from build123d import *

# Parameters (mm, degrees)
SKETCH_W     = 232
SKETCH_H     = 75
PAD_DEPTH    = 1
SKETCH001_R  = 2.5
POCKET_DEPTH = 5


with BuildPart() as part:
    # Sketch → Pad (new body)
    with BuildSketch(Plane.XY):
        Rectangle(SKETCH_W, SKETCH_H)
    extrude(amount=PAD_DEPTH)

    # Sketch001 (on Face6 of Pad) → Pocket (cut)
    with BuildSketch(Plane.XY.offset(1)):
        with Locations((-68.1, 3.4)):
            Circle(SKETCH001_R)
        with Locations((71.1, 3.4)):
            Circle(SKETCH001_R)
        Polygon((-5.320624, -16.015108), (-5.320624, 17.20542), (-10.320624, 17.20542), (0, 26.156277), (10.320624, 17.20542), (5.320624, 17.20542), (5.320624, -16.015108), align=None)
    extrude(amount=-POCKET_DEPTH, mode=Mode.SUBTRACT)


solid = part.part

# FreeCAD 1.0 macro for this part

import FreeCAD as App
import Part
import Sketcher

V = App.Vector
Q = App.Units.Quantity

doc = App.newDocument("Part")
body = doc.addObject("PartDesign::Body", "Body")

# Sketch on XY plane
sketch1 = body.newObject("Sketcher::SketchObject", "Sketch")
sketch1.AttachmentSupport = (doc.getObject("XY_Plane"), [""])
sketch1.MapMode = "FlatFace"
sketch1.addGeometry([
    Part.LineSegment(V(-116, 37.5, 0), V(-116, -37.5, 0)),
    Part.LineSegment(V(-116, -37.5, 0), V(116, -37.5, 0)),
    Part.LineSegment(V(116, -37.5, 0), V(116, 37.5, 0)),
    Part.LineSegment(V(116, 37.5, 0), V(-116, 37.5, 0)),
], False)
sketch1.addConstraint([
    Sketcher.Constraint("Coincident", 0, 2, 1, 1),
    Sketcher.Constraint("Coincident", 1, 2, 2, 1),
    Sketcher.Constraint("Coincident", 2, 2, 3, 1),
    Sketcher.Constraint("Coincident", 3, 2, 0, 1),
    Sketcher.Constraint("Vertical", 0),
    Sketcher.Constraint("Horizontal", 1),
    Sketcher.Constraint("Vertical", 2),
    Sketcher.Constraint("Horizontal", 3),
    Sketcher.Constraint("Symmetric", 0, 2, 2, 2, -1, 1),
    Sketcher.Constraint("DistanceX", 1, 1, 1, 2, Q("232 mm")),
    Sketcher.Constraint("DistanceY", 0, 2, 0, 1, Q("75 mm")),
])
pad1 = body.newObject("PartDesign::Pad", "Pad")
pad1.Profile = sketch1
pad1.Length = 1

# Sketch on XY plane
sketch2 = body.newObject("Sketcher::SketchObject", "Sketch001")
sketch2.AttachmentSupport = (doc.getObject("XY_Plane"), [""])
sketch2.MapMode = "FlatFace"
sketch2.AttachmentOffset = App.Placement(V(0, 0, 1), App.Rotation())
sketch2.addGeometry([
    Part.Circle(V(-68.1, 3.4, 0), V(0, 0, 1), 2.5),  # 0
    Part.Circle(V(71.1, 3.4, 0), V(0, 0, 1), 2.5),  # 1
    Part.LineSegment(V(-5.320624, 17.20542, 0), V(-5.320624, -16.015108, 0)),  # 2
    Part.LineSegment(V(-5.320624, -16.015108, 0), V(5.320624, -16.015108, 0)),  # 3
    Part.LineSegment(V(5.320624, -16.015108, 0), V(5.320624, 17.20542, 0)),  # 4
    Part.LineSegment(V(5.320624, 17.20542, 0), V(10.320624, 17.20542, 0)),  # 5
    Part.LineSegment(V(10.320624, 17.20542, 0), V(0, 26.156277, 0)),  # 6
    Part.LineSegment(V(0, 26.156277, 0), V(-10.320624, 17.20542, 0)),  # 7
    Part.LineSegment(V(-10.320624, 17.20542, 0), V(-5.320624, 17.20542, 0)),  # 8
], False)
sketch2.addConstraint([
    Sketcher.Constraint("Coincident", 2, 2, 3, 1),
    Sketcher.Constraint("Coincident", 3, 2, 4, 1),
    Sketcher.Constraint("Coincident", 4, 2, 5, 1),
    Sketcher.Constraint("Coincident", 5, 2, 6, 1),
    Sketcher.Constraint("Coincident", 6, 2, 7, 1),
    Sketcher.Constraint("Coincident", 7, 2, 8, 1),
    Sketcher.Constraint("Coincident", 8, 2, 2, 1),
    Sketcher.Constraint("Vertical", 2),
    Sketcher.Constraint("Horizontal", 3),
    Sketcher.Constraint("Vertical", 4),
    Sketcher.Constraint("Horizontal", 5),
    Sketcher.Constraint("Horizontal", 8),
    Sketcher.Constraint("Equal", 0, 1),
    Sketcher.Constraint("Symmetric", 5, 2, 7, 2, -2),
    Sketcher.Constraint("PointOnObject", 6, 2, -2),
    Sketcher.Constraint("Horizontal", 0, 3, 1, 3),
    Sketcher.Constraint("Equal", 5, 8),
    Sketcher.Constraint("Diameter", 0, Q("5 mm")),
    Sketcher.Constraint("DistanceX", 5, 1, 5, 2, Q("5 mm")),
    Sketcher.Constraint("DistanceX", 0, 3, -1, 1, Q("68.1 mm")),
    Sketcher.Constraint("DistanceY", -1, 1, 0, 3, Q("3.4 mm")),
    Sketcher.Constraint("DistanceX", -1, 1, 1, 3, Q("71.1 mm")),
    Sketcher.Constraint("DistanceY", 2, 2, 2, 1, Q("33.220528 mm")),
    Sketcher.Constraint("DistanceX", 3, 1, 3, 2, Q("10.641248 mm")),
    Sketcher.Constraint("DistanceY", 2, 2, -1, 1, Q("16.015108 mm")),
    Sketcher.Constraint("Distance", 6, Q("13.661373 mm")),
])
pocket1 = body.newObject("PartDesign::Pocket", "Pocket")
pocket1.Profile = sketch2
pocket1.Length = 5

doc.recompute()
